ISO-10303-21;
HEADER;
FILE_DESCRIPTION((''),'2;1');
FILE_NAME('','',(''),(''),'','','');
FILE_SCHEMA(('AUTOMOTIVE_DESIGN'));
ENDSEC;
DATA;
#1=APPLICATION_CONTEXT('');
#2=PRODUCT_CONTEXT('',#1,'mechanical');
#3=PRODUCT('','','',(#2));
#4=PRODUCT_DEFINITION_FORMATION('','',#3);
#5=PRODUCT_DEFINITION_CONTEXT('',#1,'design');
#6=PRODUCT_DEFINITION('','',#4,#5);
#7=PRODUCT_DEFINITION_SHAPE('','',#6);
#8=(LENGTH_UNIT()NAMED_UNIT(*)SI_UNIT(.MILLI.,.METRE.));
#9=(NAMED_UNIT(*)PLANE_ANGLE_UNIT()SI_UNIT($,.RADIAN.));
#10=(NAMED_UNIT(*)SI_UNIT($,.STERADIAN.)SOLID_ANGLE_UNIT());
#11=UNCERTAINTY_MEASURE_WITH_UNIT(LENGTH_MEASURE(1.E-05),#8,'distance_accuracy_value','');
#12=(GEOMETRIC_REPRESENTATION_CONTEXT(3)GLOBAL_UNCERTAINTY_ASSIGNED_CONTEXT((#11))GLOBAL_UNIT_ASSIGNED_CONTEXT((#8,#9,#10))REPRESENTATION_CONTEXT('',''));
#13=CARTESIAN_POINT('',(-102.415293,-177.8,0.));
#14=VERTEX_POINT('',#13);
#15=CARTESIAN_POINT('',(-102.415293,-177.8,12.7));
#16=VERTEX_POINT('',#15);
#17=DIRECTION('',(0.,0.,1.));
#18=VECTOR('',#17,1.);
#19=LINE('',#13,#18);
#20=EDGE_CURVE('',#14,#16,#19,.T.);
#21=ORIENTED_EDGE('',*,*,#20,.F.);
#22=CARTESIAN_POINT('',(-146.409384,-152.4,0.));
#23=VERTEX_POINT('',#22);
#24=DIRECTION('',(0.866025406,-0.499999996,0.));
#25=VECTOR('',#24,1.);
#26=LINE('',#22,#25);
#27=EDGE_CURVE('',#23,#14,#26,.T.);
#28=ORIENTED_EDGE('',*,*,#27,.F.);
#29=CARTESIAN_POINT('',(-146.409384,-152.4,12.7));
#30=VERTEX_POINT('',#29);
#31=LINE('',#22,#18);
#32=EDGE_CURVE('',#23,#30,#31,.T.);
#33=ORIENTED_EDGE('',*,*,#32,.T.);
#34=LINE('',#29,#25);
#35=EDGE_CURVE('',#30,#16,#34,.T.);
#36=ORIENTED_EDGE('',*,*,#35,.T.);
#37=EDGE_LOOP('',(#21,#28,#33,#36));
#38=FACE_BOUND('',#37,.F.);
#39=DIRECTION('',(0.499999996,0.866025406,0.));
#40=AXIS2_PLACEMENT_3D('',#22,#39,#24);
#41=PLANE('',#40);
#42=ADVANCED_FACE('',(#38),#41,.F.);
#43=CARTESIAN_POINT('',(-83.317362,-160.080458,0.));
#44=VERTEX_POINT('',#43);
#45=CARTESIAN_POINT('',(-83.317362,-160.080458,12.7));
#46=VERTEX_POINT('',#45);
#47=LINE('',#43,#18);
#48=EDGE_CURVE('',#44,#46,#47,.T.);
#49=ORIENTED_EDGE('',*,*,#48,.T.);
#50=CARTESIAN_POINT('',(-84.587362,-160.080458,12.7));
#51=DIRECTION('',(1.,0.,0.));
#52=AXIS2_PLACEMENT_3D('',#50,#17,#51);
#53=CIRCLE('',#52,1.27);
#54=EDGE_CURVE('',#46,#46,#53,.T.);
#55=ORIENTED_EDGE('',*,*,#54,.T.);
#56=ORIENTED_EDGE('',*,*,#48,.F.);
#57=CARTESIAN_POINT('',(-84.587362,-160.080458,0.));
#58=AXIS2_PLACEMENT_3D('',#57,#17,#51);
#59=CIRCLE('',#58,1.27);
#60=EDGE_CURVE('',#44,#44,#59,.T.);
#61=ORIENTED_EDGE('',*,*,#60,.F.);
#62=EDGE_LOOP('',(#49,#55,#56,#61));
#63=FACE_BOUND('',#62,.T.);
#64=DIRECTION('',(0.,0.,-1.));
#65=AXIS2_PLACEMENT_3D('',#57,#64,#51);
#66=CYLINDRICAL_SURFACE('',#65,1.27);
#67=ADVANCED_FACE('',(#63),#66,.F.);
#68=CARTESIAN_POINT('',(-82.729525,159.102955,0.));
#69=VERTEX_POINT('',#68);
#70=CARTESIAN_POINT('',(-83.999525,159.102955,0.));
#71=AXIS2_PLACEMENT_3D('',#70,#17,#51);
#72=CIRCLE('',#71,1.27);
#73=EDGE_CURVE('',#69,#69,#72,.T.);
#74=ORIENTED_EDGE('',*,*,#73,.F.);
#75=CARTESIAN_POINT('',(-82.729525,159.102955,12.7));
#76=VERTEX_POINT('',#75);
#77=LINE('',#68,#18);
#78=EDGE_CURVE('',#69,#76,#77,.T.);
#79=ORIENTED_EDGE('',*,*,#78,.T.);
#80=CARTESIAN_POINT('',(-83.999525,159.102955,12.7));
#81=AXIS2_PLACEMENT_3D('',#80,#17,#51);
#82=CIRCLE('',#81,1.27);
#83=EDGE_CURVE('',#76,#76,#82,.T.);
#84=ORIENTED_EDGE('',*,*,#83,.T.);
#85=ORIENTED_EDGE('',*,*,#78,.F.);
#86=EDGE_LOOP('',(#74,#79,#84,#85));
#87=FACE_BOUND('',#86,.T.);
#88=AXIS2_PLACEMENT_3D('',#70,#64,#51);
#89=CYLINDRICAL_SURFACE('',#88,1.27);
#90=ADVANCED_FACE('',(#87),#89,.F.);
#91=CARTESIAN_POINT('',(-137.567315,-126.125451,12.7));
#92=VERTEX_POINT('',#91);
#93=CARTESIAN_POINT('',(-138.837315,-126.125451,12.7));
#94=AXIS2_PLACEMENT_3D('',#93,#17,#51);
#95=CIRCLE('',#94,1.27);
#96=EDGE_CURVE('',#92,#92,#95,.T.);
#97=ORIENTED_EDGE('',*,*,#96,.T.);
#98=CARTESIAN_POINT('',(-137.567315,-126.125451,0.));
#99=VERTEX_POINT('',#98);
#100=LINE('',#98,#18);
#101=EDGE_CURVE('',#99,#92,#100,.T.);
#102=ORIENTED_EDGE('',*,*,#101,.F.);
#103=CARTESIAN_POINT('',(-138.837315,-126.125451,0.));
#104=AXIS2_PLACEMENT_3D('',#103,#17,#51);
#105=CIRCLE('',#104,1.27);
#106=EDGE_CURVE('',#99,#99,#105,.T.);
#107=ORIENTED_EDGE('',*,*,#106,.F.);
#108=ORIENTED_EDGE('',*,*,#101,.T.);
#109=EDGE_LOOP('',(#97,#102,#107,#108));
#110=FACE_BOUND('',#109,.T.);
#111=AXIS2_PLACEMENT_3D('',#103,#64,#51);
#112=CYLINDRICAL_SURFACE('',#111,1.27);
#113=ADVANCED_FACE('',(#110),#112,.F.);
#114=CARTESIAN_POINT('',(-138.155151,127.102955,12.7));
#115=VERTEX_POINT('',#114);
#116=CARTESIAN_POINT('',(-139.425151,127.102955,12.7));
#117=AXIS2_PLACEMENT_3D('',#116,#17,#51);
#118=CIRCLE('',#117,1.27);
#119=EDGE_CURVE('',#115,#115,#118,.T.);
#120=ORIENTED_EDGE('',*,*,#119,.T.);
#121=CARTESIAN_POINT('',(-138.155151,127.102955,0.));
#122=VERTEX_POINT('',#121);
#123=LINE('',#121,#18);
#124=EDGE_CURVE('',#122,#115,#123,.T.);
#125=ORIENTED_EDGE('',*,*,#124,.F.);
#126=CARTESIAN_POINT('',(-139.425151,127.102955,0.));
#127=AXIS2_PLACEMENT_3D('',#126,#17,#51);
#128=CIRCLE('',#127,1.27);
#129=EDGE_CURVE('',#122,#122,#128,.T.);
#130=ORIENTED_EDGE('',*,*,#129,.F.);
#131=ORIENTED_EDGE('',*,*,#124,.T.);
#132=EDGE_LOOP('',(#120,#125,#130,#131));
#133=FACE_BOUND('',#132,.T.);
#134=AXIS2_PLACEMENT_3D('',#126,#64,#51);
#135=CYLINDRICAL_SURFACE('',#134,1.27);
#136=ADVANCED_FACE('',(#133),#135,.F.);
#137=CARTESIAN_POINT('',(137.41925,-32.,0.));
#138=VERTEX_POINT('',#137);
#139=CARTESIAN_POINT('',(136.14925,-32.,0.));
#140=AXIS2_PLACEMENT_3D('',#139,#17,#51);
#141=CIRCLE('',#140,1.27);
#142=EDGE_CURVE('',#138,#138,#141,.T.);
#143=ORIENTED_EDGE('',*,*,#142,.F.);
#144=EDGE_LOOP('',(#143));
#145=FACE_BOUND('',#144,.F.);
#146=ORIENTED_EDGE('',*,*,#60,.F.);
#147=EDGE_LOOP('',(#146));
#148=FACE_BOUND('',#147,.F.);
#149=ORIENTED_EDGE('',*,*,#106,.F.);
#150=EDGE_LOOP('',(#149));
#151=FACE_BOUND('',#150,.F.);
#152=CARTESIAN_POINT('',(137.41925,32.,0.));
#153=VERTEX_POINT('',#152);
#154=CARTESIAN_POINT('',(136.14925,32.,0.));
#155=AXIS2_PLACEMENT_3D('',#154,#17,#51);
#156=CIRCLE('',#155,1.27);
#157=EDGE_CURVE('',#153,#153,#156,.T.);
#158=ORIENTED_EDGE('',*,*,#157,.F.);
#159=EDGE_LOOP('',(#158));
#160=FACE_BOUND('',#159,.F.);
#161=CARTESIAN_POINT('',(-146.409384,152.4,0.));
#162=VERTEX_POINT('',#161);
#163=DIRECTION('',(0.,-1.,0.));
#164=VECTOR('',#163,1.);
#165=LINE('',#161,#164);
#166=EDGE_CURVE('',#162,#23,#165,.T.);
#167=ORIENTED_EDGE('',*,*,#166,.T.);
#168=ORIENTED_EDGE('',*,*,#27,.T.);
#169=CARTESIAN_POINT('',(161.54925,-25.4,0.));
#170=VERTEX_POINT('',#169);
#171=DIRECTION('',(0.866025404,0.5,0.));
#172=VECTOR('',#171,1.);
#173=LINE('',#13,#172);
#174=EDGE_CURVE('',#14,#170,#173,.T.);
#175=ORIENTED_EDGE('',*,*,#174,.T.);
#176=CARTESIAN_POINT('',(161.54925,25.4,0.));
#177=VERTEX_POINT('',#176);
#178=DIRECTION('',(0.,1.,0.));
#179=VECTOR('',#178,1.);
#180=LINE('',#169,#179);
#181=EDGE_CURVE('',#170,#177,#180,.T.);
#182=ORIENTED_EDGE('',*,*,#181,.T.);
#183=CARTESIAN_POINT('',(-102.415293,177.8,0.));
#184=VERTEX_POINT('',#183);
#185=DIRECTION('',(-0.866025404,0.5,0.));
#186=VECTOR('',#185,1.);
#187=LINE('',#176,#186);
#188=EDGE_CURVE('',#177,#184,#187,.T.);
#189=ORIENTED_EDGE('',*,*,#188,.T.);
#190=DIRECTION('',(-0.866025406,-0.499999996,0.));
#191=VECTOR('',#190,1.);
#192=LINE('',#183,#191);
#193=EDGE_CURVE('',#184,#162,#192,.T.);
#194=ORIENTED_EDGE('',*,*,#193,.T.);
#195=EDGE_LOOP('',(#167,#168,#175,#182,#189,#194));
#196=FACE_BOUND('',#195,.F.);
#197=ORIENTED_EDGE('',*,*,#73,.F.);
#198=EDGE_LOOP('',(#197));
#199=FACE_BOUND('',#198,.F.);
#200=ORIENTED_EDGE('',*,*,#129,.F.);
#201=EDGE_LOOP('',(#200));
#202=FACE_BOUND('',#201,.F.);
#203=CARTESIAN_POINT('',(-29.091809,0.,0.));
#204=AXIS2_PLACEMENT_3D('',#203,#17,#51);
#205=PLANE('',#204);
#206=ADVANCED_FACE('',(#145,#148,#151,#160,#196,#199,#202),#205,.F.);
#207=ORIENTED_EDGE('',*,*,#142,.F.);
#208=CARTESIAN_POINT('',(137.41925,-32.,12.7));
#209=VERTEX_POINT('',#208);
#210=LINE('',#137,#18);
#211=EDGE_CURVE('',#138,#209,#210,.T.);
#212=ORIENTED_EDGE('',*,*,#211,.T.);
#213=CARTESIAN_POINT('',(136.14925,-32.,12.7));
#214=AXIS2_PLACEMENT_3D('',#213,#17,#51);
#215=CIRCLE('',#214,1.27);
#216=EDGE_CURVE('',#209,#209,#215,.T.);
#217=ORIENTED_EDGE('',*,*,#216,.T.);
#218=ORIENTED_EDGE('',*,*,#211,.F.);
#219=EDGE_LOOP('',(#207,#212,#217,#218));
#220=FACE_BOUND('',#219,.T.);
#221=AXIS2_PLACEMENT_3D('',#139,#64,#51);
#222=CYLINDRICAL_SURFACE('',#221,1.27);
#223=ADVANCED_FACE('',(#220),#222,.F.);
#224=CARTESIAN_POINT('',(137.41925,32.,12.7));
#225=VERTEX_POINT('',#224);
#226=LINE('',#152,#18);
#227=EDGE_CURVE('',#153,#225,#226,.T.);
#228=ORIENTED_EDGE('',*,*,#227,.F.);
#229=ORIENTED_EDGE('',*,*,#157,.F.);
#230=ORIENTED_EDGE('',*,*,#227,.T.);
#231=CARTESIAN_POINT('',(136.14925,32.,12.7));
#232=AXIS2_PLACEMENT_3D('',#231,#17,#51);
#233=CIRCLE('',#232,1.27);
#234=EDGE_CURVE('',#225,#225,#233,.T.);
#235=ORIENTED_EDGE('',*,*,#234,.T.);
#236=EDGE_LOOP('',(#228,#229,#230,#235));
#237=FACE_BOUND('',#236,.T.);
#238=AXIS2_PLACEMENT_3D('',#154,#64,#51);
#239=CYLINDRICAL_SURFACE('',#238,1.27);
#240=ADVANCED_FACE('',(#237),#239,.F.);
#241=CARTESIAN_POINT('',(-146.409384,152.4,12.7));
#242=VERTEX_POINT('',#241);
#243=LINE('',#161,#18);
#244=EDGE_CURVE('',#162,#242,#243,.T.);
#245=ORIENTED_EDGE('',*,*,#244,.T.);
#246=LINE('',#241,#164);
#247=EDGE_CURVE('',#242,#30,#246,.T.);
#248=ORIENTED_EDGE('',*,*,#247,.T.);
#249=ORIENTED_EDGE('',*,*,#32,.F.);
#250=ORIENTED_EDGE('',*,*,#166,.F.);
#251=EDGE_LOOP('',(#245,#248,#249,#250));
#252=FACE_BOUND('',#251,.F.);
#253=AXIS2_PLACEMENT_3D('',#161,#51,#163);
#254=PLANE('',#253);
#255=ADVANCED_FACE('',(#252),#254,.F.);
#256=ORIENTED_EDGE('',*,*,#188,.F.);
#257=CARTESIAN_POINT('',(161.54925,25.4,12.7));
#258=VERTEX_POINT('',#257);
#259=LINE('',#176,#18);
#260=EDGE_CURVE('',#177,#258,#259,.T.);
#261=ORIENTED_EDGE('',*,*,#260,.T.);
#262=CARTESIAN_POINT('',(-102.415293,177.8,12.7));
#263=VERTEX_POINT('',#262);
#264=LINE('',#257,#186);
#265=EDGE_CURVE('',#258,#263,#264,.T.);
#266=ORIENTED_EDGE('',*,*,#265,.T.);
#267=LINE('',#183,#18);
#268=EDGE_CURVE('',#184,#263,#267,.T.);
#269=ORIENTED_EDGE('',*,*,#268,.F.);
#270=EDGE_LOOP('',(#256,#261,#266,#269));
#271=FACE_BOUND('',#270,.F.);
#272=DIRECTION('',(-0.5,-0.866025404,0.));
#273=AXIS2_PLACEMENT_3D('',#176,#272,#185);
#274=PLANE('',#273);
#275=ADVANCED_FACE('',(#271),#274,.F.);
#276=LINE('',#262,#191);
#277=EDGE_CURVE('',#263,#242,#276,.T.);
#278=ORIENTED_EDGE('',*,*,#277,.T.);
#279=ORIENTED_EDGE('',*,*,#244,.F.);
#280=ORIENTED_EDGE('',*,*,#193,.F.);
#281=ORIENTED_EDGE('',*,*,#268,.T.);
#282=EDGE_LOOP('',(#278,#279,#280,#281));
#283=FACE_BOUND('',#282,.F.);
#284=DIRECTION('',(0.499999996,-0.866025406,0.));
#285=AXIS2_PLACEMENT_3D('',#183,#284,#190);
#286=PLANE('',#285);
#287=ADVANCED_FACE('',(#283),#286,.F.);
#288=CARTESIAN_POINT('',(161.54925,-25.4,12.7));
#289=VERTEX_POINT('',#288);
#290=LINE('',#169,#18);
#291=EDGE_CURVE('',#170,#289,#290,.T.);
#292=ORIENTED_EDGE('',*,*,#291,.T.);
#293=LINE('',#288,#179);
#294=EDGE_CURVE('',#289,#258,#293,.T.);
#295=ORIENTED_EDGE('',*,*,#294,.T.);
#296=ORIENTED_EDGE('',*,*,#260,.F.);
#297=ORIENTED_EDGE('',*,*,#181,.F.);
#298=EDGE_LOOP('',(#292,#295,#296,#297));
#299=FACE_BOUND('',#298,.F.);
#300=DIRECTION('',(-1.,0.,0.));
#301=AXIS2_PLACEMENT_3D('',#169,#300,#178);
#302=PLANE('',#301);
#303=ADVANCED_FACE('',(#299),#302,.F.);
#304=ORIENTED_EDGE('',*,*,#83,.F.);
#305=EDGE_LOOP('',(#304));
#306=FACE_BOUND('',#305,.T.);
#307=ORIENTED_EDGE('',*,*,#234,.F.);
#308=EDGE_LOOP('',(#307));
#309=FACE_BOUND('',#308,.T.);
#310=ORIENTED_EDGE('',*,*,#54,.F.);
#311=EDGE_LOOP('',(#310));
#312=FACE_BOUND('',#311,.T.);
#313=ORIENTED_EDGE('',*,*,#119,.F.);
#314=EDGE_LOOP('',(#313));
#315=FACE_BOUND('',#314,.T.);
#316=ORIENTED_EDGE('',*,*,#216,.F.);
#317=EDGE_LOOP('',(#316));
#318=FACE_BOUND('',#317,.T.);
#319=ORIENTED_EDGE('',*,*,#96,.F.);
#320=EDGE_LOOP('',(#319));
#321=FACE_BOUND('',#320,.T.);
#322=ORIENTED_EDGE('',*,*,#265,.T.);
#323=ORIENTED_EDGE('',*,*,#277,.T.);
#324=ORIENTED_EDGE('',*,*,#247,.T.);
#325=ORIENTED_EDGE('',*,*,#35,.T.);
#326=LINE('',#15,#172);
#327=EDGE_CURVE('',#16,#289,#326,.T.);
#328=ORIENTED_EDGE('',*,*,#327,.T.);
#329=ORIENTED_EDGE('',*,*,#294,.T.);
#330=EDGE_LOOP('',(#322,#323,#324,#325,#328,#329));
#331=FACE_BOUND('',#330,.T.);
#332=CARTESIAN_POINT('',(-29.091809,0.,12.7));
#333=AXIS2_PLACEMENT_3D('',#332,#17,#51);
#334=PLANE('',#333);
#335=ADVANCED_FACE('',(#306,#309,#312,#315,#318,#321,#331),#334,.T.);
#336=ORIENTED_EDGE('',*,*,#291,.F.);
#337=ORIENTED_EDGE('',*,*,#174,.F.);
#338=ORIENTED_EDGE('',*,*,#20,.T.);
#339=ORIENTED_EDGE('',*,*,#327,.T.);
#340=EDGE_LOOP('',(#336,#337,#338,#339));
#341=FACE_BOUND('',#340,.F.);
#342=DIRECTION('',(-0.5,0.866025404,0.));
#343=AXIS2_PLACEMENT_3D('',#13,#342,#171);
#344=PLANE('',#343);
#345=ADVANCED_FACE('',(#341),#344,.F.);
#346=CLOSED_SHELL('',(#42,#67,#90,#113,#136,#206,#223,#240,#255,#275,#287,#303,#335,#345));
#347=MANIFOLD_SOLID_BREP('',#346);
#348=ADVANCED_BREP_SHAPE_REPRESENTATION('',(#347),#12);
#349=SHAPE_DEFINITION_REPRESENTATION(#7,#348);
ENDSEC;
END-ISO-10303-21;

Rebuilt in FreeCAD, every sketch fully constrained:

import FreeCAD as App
import Part
import Sketcher
from FreeCAD import Vector
Q = App.Units.Quantity

doc = App.newDocument("Part")
body = doc.addObject("PartDesign::Body", "Body")

# Sketch on XY plane
sketch1 = doc.addObject("Sketcher::SketchObject", "Sketch")
body.addObject(sketch1)
sketch1.AttachmentSupport = (doc.XY_Plane, [""])
sketch1.MapMode = "FlatFace"
sketch1.addGeometry(Part.LineSegment(Vector(-146.4, 152.4, 0), Vector(-146.4, -152.4, 0)), False)
sketch1.addGeometry(Part.LineSegment(Vector(-146.4, -152.4, 0), Vector(-102.4, -177.8, 0)), False)
sketch1.addGeometry(Part.LineSegment(Vector(-102.4, -177.8, 0), Vector(161.5, -25.4, 0)), False)
sketch1.addGeometry(Part.LineSegment(Vector(161.5, -25.4, 0), Vector(161.5, 25.4, 0)), False)
sketch1.addGeometry(Part.LineSegment(Vector(161.5, 25.4, 0), Vector(-102.4, 177.8, 0)), False)
sketch1.addGeometry(Part.LineSegment(Vector(-102.4, 177.8, 0), Vector(-146.4, 152.4, 0)), False)
sketch1.addGeometry(Part.Circle(Vector(-138.8, -126.1, 0), Vector(0, 0, 1), 1.3), False)
sketch1.addGeometry(Part.Circle(Vector(-84.6, -160.1, 0), Vector(0, 0, 1), 1.3), False)
sketch1.addGeometry(Part.Circle(Vector(136.1, -32, 0), Vector(0, 0, 1), 1.3), False)
sketch1.addGeometry(Part.Circle(Vector(-139.4, 127.1, 0), Vector(0, 0, 1), 1.3), False)
sketch1.addGeometry(Part.Circle(Vector(-84, 159.1, 0), Vector(0, 0, 1), 1.3), False)
sketch1.addGeometry(Part.Circle(Vector(136.1, 32, 0), Vector(0, 0, 1), 1.3), False)
sketch1.addConstraint(Sketcher.Constraint("Coincident", 0, 2, 1, 1))
sketch1.addConstraint(Sketcher.Constraint("Coincident", 1, 2, 2, 1))
sketch1.addConstraint(Sketcher.Constraint("Coincident", 2, 2, 3, 1))
sketch1.addConstraint(Sketcher.Constraint("Coincident", 3, 2, 4, 1))
sketch1.addConstraint(Sketcher.Constraint("Coincident", 4, 2, 5, 1))
sketch1.addConstraint(Sketcher.Constraint("Coincident", 5, 2, 0, 1))
sketch1.addConstraint(Sketcher.Constraint("Vertical", 0))
sketch1.addConstraint(Sketcher.Constraint("Vertical", 3))
sketch1.addConstraint(Sketcher.Constraint("Equal", 6, 7))
sketch1.addConstraint(Sketcher.Constraint("Equal", 7, 8))
sketch1.addConstraint(Sketcher.Constraint("Equal", 8, 9))
sketch1.addConstraint(Sketcher.Constraint("Equal", 9, 10))
sketch1.addConstraint(Sketcher.Constraint("Equal", 10, 11))
sketch1.addConstraint(Sketcher.Constraint("Symmetric", 8, 3, 11, 3, -1))
sketch1.addConstraint(Sketcher.Constraint("Symmetric", 1, 2, 4, 2, -1))
sketch1.addConstraint(Sketcher.Constraint("Parallel", 1, 4))
sketch1.addConstraint(Sketcher.Constraint("Parallel", 2, 5))
sketch1.addConstraint(Sketcher.Constraint("Equal", 2, 4))
sketch1.addConstraint(Sketcher.Constraint("Diameter", 6, Q("0.1 in")))
sketch1.addConstraint(Sketcher.Constraint("DistanceY", 0, 2, 0, 1, Q("12 in")))
sketch1.addConstraint(Sketcher.Constraint("DistanceY", 3, 1, 3, 2, Q("2 in")))
sketch1.addConstraint(Sketcher.Constraint("Distance", 1, Q("2 in")))
sketch1.addConstraint(Sketcher.Constraint("Distance", 2, Q("12 in")))
sketch1.addConstraint(Sketcher.Constraint("DistanceX", 8, 3, 2, 2, Q("1 in")))
sketch1.addConstraint(Sketcher.Constraint("DistanceY", 8, 3, -1, 1, Q("32 mm")))
sketch1.addConstraint(Sketcher.Constraint("DistanceX", 9, 3, 8, 3, Q("275.574401 mm")))
sketch1.addConstraint(Sketcher.Constraint("DistanceY", 9, 3, 10, 3, Q("32 mm")))
sketch1.addConstraint(Sketcher.Constraint("DistanceY", 6, 3, -1, 1, Q("126.125451 mm")))
sketch1.addConstraint(Sketcher.Constraint("DistanceX", 7, 3, -1, 1, Q("84.587362 mm")))
sketch1.addConstraint(Sketcher.Constraint("DistanceY", 7, 3, -1, 1, Q("160.080458 mm")))
sketch1.addConstraint(Sketcher.Constraint("DistanceX", -1, 1, 8, 3, Q("136.14925 mm")))
sketch1.addConstraint(Sketcher.Constraint("DistanceX", 6, 3, 10, 3, Q("54.83779 mm")))
sketch1.addConstraint(Sketcher.Constraint("DistanceX", 0, 2, 6, 3, Q("7.572069 mm")))
sketch1.addConstraint(Sketcher.Constraint("DistanceY", -1, 1, 9, 3, Q("127.102955 mm")))
pad1 = doc.addObject("PartDesign::Pad", "Pad")
body.addObject(pad1)
pad1.Profile = sketch1
pad1.Length = Q("0.5 in")

doc.recompute()
